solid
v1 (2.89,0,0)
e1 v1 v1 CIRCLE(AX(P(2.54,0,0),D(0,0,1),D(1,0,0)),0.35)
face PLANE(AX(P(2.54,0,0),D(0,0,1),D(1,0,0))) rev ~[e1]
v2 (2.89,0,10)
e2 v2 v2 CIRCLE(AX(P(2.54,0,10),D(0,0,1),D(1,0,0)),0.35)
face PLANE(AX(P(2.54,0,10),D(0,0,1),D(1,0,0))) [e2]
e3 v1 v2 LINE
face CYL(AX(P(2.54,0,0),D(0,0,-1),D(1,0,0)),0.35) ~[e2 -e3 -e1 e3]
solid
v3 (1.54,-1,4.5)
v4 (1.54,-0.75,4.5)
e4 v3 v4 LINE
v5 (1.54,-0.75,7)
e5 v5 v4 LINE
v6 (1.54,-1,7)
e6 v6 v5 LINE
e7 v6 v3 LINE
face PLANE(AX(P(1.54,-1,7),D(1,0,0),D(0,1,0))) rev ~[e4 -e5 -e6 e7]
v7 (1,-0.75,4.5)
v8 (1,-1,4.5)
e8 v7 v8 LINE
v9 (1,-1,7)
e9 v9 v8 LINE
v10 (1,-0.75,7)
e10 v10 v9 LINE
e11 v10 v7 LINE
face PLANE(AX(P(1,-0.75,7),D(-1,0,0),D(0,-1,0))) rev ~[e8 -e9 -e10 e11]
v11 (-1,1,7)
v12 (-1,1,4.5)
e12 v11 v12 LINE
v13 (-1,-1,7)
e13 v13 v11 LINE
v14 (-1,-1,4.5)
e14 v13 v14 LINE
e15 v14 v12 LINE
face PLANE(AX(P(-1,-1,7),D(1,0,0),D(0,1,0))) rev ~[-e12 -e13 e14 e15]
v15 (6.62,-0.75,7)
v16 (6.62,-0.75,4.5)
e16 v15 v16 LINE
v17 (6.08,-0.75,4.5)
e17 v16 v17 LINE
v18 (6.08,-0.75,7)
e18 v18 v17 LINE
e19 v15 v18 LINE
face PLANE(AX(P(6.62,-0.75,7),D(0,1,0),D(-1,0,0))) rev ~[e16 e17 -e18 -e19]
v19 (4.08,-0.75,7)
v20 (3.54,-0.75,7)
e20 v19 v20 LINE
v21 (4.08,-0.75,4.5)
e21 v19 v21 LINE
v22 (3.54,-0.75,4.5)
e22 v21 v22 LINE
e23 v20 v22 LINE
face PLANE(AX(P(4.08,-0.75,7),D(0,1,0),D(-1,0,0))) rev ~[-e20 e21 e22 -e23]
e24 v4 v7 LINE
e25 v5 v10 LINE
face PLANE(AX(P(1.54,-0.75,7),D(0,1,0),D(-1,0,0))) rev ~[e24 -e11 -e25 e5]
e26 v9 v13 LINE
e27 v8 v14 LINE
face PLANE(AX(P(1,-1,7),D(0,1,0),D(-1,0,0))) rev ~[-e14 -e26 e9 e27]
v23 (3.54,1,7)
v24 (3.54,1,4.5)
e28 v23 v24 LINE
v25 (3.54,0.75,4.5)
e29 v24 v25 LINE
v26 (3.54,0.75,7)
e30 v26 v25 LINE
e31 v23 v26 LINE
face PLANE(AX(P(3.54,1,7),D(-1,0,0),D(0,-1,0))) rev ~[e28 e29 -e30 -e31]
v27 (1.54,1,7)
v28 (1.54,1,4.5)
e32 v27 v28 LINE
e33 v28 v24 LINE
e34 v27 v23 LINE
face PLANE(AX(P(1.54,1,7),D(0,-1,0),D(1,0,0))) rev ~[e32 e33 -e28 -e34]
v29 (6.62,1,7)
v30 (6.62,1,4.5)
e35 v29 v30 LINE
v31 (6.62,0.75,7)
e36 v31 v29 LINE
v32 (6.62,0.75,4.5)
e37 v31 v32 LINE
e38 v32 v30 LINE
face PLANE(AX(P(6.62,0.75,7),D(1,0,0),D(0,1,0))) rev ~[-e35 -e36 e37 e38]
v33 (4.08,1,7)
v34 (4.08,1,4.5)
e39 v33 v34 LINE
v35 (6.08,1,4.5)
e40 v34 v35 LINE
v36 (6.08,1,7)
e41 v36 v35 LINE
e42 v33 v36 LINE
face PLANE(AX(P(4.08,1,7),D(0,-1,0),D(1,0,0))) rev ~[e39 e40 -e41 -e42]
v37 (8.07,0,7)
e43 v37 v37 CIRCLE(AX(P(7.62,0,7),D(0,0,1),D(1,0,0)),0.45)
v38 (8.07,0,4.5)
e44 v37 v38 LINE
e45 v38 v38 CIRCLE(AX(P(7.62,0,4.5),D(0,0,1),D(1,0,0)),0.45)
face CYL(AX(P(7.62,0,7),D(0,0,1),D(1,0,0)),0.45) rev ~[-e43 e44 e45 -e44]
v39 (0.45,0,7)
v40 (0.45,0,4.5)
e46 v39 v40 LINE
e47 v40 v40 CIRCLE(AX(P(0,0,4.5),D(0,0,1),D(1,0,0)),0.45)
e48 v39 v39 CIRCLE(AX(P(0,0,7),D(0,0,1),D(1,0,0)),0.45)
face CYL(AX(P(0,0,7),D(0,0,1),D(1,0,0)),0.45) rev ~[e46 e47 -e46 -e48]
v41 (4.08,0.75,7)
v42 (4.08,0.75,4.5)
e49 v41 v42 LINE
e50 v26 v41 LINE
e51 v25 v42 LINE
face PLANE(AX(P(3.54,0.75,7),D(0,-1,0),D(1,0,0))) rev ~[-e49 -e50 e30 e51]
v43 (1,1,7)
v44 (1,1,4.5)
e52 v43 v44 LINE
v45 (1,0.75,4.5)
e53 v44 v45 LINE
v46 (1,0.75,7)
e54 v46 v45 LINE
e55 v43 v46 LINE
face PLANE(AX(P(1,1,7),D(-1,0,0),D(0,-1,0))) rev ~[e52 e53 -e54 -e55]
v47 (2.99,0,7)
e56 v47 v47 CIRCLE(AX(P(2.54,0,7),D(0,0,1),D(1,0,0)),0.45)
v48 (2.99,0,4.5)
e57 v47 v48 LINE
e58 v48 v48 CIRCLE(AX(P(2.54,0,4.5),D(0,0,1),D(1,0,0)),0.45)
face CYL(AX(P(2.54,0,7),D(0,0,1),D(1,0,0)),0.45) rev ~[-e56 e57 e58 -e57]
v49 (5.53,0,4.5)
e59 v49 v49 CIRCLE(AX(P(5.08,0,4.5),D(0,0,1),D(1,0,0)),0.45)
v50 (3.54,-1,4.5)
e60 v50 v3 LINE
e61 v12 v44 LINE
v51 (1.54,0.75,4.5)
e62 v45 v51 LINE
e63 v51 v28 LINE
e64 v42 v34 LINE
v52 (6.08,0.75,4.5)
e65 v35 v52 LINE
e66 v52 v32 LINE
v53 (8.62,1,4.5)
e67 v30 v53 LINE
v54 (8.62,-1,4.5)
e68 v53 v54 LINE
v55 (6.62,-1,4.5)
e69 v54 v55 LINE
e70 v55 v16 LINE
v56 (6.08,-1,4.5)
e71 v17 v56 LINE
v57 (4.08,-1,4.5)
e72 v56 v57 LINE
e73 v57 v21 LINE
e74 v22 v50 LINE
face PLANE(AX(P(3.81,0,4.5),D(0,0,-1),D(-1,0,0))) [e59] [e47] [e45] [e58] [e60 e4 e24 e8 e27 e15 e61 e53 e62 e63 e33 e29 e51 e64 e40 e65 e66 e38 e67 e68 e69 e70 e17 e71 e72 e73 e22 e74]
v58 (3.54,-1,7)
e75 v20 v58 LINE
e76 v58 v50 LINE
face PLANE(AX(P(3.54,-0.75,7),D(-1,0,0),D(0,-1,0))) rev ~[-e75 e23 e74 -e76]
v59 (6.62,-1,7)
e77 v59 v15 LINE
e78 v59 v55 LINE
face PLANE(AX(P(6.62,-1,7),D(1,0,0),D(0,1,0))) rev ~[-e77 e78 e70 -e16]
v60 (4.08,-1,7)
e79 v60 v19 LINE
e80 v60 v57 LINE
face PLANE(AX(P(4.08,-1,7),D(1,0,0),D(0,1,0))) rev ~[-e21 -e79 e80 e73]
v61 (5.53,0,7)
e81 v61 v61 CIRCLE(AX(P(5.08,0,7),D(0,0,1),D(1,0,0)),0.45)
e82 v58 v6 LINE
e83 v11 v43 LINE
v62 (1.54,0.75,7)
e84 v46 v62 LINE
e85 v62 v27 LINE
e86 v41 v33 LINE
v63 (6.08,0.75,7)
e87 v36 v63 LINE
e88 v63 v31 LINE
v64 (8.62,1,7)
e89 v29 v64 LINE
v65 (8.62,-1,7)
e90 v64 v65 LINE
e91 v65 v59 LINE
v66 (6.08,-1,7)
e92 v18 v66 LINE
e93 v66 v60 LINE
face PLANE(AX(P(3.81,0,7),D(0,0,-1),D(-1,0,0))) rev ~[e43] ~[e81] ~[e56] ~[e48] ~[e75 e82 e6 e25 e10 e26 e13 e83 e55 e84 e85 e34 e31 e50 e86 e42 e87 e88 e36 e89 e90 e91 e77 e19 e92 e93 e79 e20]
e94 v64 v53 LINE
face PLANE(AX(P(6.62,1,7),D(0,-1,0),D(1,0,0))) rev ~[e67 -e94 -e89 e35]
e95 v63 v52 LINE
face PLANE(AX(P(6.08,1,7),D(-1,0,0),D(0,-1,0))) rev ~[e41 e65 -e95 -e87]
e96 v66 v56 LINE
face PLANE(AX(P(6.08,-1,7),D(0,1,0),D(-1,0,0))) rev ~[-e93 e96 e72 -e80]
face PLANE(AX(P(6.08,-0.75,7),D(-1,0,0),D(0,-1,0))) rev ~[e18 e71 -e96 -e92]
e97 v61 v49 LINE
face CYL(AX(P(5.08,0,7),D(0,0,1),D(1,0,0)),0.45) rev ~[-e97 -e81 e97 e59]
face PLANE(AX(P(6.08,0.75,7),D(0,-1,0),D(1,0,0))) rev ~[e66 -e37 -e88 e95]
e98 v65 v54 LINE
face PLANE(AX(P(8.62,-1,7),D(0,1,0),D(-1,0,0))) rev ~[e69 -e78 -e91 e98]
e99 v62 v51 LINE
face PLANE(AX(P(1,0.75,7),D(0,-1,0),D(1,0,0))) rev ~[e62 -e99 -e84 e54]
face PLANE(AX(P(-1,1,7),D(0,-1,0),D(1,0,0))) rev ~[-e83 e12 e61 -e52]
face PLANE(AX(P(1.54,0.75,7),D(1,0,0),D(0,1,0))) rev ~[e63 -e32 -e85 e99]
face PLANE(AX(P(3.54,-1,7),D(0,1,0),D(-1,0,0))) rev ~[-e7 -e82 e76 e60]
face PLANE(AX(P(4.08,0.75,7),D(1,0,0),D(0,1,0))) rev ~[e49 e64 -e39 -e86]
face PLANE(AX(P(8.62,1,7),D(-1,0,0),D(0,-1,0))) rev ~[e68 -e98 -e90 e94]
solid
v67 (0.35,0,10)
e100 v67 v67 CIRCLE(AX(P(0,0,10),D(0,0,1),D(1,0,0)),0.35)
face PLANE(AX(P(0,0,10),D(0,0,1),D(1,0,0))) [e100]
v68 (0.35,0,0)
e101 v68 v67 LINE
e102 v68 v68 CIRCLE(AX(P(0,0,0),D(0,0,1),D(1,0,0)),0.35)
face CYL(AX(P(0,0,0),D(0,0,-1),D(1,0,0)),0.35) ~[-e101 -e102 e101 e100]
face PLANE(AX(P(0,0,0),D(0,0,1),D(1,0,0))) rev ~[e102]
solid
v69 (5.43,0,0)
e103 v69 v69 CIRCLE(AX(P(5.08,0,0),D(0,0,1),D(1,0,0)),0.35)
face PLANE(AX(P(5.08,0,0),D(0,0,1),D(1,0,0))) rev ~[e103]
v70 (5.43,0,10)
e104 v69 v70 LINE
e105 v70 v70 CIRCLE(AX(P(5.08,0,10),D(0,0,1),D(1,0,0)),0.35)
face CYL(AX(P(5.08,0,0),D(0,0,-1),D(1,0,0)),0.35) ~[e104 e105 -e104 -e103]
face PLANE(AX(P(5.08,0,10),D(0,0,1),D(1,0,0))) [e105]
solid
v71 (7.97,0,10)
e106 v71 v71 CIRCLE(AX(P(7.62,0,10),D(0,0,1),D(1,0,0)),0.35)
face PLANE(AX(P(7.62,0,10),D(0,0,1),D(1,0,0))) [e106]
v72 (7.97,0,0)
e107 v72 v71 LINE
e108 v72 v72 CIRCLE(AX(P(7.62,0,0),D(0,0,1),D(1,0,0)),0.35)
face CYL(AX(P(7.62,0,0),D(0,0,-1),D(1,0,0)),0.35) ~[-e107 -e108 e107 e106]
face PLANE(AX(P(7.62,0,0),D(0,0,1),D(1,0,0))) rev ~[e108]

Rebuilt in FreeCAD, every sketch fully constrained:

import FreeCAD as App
import Part
import Sketcher
from FreeCAD import Vector
Q = App.Units.Quantity


def add_polygon(sketch, points):
    """Adds a closed chain of lines whose ends are joined by coincident constraints."""
    first, n = sketch.GeometryCount, len(points)
    for a, b in zip(points, points[1:] + points[:1]):
        sketch.addGeometry(Part.LineSegment(App.Vector(*a, 0), App.Vector(*b, 0)), False)
    for i in range(n):
        sketch.addConstraint(Sketcher.Constraint("Coincident", first + i, 2, first + (i + 1) % n, 1))

doc = App.newDocument("Part")
body = doc.addObject("PartDesign::Body", "Body")

# Sketch on XY plane
sketch1 = body.newObject("Sketcher::SketchObject", "Sketch")
sketch1.AttachmentSupport = (doc.getObject("XY_Plane"), [""])
sketch1.MapMode = "FlatFace"
sketch1.addGeometry(Part.Circle(Vector(0, 0, 0), Vector(0, 0, 1), 0.35), False)
sketch1.addConstraint(Sketcher.Constraint("Coincident", 0, 3, -1, 1))
sketch1.addConstraint(Sketcher.Constraint("Diameter", 0, Q("0.7 mm")))
pad1 = body.newObject("PartDesign::Pad", "Pad")
pad1.Profile = sketch1
pad1.Length = 10
body2 = doc.addObject("PartDesign::Body", "Body001")

# Sketch on XY plane
sketch2 = body2.newObject("Sketcher::SketchObject", "Sketch001")
sketch2.AttachmentSupport = (doc.getObject("XY_Plane001"), [""])
sketch2.MapMode = "FlatFace"
sketch2.addGeometry(Part.Circle(Vector(2.54, 0, 0), Vector(0, 0, 1), 0.35), False)
sketch2.addConstraint(Sketcher.Constraint("PointOnObject", 0, 3, -1))
sketch2.addConstraint(Sketcher.Constraint("Diameter", 0, Q("0.7 mm")))
sketch2.addConstraint(Sketcher.Constraint("DistanceX", -1, 1, 0, 3, Q("2.54 mm")))
pad2 = body2.newObject("PartDesign::Pad", "Pad001")
pad2.Profile = sketch2
pad2.Length = 10
body3 = doc.addObject("PartDesign::Body", "Body002")

# Sketch on XY plane
sketch3 = body3.newObject("Sketcher::SketchObject", "Sketch002")
sketch3.AttachmentSupport = (doc.getObject("XY_Plane002"), [""])
sketch3.MapMode = "FlatFace"
sketch3.addGeometry(Part.Circle(Vector(5.08, 0, 0), Vector(0, 0, 1), 0.35), False)
sketch3.addConstraint(Sketcher.Constraint("PointOnObject", 0, 3, -1))
sketch3.addConstraint(Sketcher.Constraint("Diameter", 0, Q("0.7 mm")))
sketch3.addConstraint(Sketcher.Constraint("DistanceX", -1, 1, 0, 3, Q("5.08 mm")))
pad3 = body3.newObject("PartDesign::Pad", "Pad002")
pad3.Profile = sketch3
pad3.Length = 10
body4 = doc.addObject("PartDesign::Body", "Body003")

# Sketch on XY plane
sketch4 = body4.newObject("Sketcher::SketchObject", "Sketch003")
sketch4.AttachmentSupport = (doc.getObject("XY_Plane003"), [""])
sketch4.MapMode = "FlatFace"
sketch4.addGeometry(Part.Circle(Vector(7.62, 0, 0), Vector(0, 0, 1), 0.35), False)
sketch4.addConstraint(Sketcher.Constraint("PointOnObject", 0, 3, -1))
sketch4.addConstraint(Sketcher.Constraint("Diameter", 0, Q("0.7 mm")))
sketch4.addConstraint(Sketcher.Constraint("DistanceX", -1, 1, 0, 3, Q("7.62 mm")))
pad4 = body4.newObject("PartDesign::Pad", "Pad003")
pad4.Profile = sketch4
pad4.Length = 10
body5 = doc.addObject("PartDesign::Body", "Body004")

# Sketch on XY plane
sketch5 = body5.newObject("Sketcher::SketchObject", "Sketch004")
sketch5.AttachmentSupport = (doc.getObject("XY_Plane004"), [""])
sketch5.MapMode = "FlatFace"
sketch5.AttachmentOffset = App.Placement(Vector(0, 0, 7), App.Rotation())
add_polygon(sketch5, [(3.54, 1), (1.54, 1), (1.54, 0.75), (1, 0.75), (1, 1), (-1, 1), (-1, -1), (1, -1), (1, -0.75), (1.54, -0.75), (1.54, -1), (3.54, -1), (3.54, -0.75), (4.08, -0.75), (4.08, -1), (6.08, -1), (6.08, -0.75), (6.62, -0.75), (6.62, -1), (8.62, -1), (8.62, 1), (6.62, 1), (6.62, 0.75), (6.08, 0.75), (6.08, 1), (4.08, 1), (4.08, 0.75), (3.54, 0.75)])  # lines 0-27
sketch5.addGeometry(Part.Circle(Vector(7.62, 0, 0), Vector(0, 0, 1), 0.45), False)  # 28
sketch5.addGeometry(Part.Circle(Vector(5.08, 0, 0), Vector(0, 0, 1), 0.45), False)  # 29
sketch5.addGeometry(Part.Circle(Vector(2.54, 0, 0), Vector(0, 0, 1), 0.45), False)  # 30
sketch5.addGeometry(Part.Circle(Vector(0, 0, 0), Vector(0, 0, 1), 0.45), False)  # 31
sketch5.addConstraint(Sketcher.Constraint("Horizontal", 0))
sketch5.addConstraint(Sketcher.Constraint("Vertical", 1))
sketch5.addConstraint(Sketcher.Constraint("Horizontal", 2))
sketch5.addConstraint(Sketcher.Constraint("Vertical", 3))
sketch5.addConstraint(Sketcher.Constraint("Horizontal", 4))
sketch5.addConstraint(Sketcher.Constraint("Vertical", 5))
sketch5.addConstraint(Sketcher.Constraint("Horizontal", 6))
sketch5.addConstraint(Sketcher.Constraint("Vertical", 7))
sketch5.addConstraint(Sketcher.Constraint("Horizontal", 8))
sketch5.addConstraint(Sketcher.Constraint("Vertical", 9))
sketch5.addConstraint(Sketcher.Constraint("Horizontal", 10))
sketch5.addConstraint(Sketcher.Constraint("Vertical", 11))
sketch5.addConstraint(Sketcher.Constraint("Horizontal", 12))
sketch5.addConstraint(Sketcher.Constraint("Vertical", 13))
sketch5.addConstraint(Sketcher.Constraint("Horizontal", 14))
sketch5.addConstraint(Sketcher.Constraint("Vertical", 15))
sketch5.addConstraint(Sketcher.Constraint("Horizontal", 16))
sketch5.addConstraint(Sketcher.Constraint("Vertical", 17))
sketch5.addConstraint(Sketcher.Constraint("Horizontal", 18))
sketch5.addConstraint(Sketcher.Constraint("Vertical", 19))
sketch5.addConstraint(Sketcher.Constraint("Horizontal", 20))
sketch5.addConstraint(Sketcher.Constraint("Vertical", 21))
sketch5.addConstraint(Sketcher.Constraint("Horizontal", 22))
sketch5.addConstraint(Sketcher.Constraint("Vertical", 23))
sketch5.addConstraint(Sketcher.Constraint("Horizontal", 24))
sketch5.addConstraint(Sketcher.Constraint("Vertical", 25))
sketch5.addConstraint(Sketcher.Constraint("Horizontal", 26))
sketch5.addConstraint(Sketcher.Constraint("Vertical", 27))
sketch5.addConstraint(Sketcher.Constraint("Coincident", 31, 3, -1, 1))
sketch5.addConstraint(Sketcher.Constraint("Equal", 28, 29))
sketch5.addConstraint(Sketcher.Constraint("Equal", 29, 30))
sketch5.addConstraint(Sketcher.Constraint("Equal", 30, 31))
sketch5.addConstraint(Sketcher.Constraint("Symmetric", 3, 2, 5, 2, -1, 1))
sketch5.addConstraint(Sketcher.Constraint("Symmetric", 2, 2, 7, 2, -1))
sketch5.addConstraint(Sketcher.Constraint("Symmetric", 0, 2, 9, 2, -1))
sketch5.addConstraint(Sketcher.Constraint("Symmetric", 17, 2, 20, 2, -1))
sketch5.addConstraint(Sketcher.Constraint("Symmetric", 15, 2, 22, 2, -1))
sketch5.addConstraint(Sketcher.Constraint("Symmetric", 13, 2, 24, 2, -1))
sketch5.addConstraint(Sketcher.Constraint("Symmetric", 11, 2, 26, 2, -1))
sketch5.addConstraint(Sketcher.Constraint("PointOnObject", 28, 3, -1))
sketch5.addConstraint(Sketcher.Constraint("PointOnObject", 29, 3, -1))
sketch5.addConstraint(Sketcher.Constraint("PointOnObject", 30, 3, -1))
sketch5.addConstraint(Sketcher.Constraint("Horizontal", 0, 2, 3, 2))
sketch5.addConstraint(Sketcher.Constraint("Horizontal", 8, 2, 11, 2))
sketch5.addConstraint(Sketcher.Constraint("Horizontal", 10, 2, 13, 2))
sketch5.addConstraint(Sketcher.Constraint("Horizontal", 12, 2, 15, 2))
sketch5.addConstraint(Sketcher.Constraint("Horizontal", 14, 2, 17, 2))
sketch5.addConstraint(Sketcher.Constraint("Equal", 0, 4))
sketch5.addConstraint(Sketcher.Constraint("Equal", 8, 12))
sketch5.addConstraint(Sketcher.Constraint("Equal", 10, 14))
sketch5.addConstraint(Sketcher.Constraint("Equal", 12, 16))
sketch5.addConstraint(Sketcher.Constraint("Equal", 14, 18))
sketch5.addConstraint(Sketcher.Constraint("Equal", 24, 5))
sketch5.addConstraint(Sketcher.Constraint("Diameter", 28, Q("0.9 mm")))
sketch5.addConstraint(Sketcher.Constraint("DistanceX", 0, 2, 0, 1, Q("2 mm")))
sketch5.addConstraint(Sketcher.Constraint("DistanceX", 0, 2, 30, 3, Q("1 mm")))
sketch5.addConstraint(Sketcher.Constraint("DistanceX", 12, 2, 29, 3, Q("1 mm")))
sketch5.addConstraint(Sketcher.Constraint("DistanceX", 16, 2, 28, 3, Q("1 mm")))
sketch5.addConstraint(Sketcher.Constraint("DistanceX", 2, 2, 2, 1, Q("0.54 mm")))
sketch5.addConstraint(Sketcher.Constraint("DistanceY", 1, 2, 1, 1, Q("0.25 mm")))
pad5 = body5.newObject("PartDesign::Pad", "Pad004")
pad5.Profile = sketch5
pad5.Length = 2.5
pad5.Reversed = True

doc.recompute()
